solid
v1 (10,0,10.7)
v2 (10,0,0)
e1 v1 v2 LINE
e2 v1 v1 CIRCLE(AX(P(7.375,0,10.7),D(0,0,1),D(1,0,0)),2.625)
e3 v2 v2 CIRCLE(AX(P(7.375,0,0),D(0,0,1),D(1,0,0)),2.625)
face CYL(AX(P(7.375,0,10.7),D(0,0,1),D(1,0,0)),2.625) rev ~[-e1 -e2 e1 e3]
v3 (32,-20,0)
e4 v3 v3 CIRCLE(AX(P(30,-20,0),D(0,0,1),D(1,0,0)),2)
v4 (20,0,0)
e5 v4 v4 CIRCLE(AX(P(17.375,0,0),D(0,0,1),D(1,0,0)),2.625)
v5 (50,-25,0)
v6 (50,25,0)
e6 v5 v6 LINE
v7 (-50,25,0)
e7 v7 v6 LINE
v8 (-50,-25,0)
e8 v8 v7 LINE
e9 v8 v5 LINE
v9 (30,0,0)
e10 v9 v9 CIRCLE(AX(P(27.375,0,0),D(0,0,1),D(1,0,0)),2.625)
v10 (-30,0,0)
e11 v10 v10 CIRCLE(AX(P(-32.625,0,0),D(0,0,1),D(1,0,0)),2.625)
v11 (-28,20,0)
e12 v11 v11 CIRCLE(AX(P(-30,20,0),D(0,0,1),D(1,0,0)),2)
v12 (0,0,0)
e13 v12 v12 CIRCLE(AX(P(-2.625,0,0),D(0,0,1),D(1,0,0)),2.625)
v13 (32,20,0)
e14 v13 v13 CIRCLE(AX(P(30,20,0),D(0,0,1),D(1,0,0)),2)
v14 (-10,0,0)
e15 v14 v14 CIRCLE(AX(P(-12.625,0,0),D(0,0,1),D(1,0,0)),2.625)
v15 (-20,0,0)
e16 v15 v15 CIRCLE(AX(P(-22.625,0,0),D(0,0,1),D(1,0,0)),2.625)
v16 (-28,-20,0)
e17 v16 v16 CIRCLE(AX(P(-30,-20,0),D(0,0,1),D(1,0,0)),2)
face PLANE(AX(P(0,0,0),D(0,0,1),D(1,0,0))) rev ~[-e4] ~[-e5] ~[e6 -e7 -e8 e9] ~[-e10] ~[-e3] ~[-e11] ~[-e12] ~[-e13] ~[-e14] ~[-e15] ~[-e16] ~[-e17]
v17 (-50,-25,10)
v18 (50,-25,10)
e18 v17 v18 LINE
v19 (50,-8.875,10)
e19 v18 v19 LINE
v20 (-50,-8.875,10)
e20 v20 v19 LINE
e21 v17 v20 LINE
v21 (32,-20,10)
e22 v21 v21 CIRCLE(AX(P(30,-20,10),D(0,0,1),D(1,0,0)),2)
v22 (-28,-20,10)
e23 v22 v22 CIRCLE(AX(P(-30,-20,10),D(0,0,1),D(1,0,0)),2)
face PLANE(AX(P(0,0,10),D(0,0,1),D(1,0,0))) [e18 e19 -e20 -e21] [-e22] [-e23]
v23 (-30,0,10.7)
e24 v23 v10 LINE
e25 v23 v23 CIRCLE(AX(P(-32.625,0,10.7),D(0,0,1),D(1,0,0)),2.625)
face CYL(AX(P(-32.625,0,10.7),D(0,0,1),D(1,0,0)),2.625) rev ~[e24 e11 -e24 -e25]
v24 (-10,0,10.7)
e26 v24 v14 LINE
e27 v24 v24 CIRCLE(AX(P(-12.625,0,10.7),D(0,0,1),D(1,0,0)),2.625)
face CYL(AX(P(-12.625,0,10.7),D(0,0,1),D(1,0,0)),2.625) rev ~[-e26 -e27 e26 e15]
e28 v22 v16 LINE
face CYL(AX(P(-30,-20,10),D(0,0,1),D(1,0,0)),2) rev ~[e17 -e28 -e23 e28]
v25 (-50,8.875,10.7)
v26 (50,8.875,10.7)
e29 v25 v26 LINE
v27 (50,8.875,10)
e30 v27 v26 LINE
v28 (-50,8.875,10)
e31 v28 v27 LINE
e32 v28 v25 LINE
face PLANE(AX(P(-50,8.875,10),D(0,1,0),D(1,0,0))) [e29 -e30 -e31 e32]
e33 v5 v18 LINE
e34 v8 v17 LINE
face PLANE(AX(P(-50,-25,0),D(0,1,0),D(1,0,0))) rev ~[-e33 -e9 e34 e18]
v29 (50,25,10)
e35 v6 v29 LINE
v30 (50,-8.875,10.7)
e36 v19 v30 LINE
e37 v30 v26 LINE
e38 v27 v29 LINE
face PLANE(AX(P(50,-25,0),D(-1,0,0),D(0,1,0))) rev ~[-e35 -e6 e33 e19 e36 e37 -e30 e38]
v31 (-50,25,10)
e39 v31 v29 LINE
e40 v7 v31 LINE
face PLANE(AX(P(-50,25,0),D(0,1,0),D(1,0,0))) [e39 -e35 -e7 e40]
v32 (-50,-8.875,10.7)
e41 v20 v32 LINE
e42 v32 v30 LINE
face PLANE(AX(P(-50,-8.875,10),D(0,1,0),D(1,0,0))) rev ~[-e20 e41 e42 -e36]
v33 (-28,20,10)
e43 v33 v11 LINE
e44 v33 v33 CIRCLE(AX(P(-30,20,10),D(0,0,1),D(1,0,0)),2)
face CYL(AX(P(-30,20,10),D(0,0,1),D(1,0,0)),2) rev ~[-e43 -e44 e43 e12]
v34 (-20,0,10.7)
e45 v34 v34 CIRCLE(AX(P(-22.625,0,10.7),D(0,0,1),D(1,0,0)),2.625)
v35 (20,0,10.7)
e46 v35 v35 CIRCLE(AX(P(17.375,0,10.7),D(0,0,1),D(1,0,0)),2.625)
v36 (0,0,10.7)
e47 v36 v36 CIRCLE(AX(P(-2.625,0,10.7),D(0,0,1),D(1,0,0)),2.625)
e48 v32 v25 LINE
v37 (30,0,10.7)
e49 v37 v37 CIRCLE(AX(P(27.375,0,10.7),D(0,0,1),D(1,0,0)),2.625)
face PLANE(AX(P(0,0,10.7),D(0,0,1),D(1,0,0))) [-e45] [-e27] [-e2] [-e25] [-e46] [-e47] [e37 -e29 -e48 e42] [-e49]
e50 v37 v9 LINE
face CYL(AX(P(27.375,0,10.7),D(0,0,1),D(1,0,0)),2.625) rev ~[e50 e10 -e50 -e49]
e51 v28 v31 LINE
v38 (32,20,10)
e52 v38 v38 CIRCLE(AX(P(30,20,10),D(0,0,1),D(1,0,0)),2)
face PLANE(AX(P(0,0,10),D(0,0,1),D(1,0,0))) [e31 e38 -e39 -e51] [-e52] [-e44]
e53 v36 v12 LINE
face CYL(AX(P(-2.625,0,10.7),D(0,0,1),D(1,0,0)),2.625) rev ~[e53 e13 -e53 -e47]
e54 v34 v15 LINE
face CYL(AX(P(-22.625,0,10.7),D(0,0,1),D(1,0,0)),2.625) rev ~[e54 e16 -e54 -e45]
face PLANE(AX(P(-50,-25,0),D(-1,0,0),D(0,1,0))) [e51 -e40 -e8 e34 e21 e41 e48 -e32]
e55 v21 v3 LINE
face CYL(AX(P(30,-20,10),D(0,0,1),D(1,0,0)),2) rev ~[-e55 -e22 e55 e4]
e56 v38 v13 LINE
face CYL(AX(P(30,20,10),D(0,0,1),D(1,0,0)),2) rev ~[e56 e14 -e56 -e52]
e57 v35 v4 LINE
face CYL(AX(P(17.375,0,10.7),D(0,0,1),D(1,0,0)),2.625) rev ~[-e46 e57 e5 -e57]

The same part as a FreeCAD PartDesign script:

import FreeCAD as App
import Part
import Sketcher

V = App.Vector
Q = App.Units.Quantity


def add_polygon(sketch, points):
    """Adds a closed chain of lines whose ends are joined by coincident constraints."""
    first, n = sketch.GeometryCount, len(points)
    for a, b in zip(points, points[1:] + points[:1]):
        sketch.addGeometry(Part.LineSegment(App.Vector(*a, 0), App.Vector(*b, 0)), False)
    for i in range(n):
        sketch.addConstraint(Sketcher.Constraint("Coincident", first + i, 2, first + (i + 1) % n, 1))

doc = App.newDocument("Part")
body = doc.addObject("PartDesign::Body", "Body")

# Sketch on XY plane
sketch1 = body.newObject("Sketcher::SketchObject", "Sketch")
sketch1.AttachmentSupport = (doc.getObject("XY_Plane"), [""])
sketch1.MapMode = "FlatFace"
add_polygon(sketch1, [(-50, 25), (-50, -25), (50, -25), (50, 25)])  # lines 0-3
sketch1.addConstraint(Sketcher.Constraint("Vertical", 0))
sketch1.addConstraint(Sketcher.Constraint("Horizontal", 1))
sketch1.addConstraint(Sketcher.Constraint("Vertical", 2))
sketch1.addConstraint(Sketcher.Constraint("Horizontal", 3))
sketch1.addConstraint(Sketcher.Constraint("Symmetric", 0, 2, 2, 2, -1, 1))
sketch1.addConstraint(Sketcher.Constraint("DistanceX", 1, 1, 1, 2, Q("100 mm")))
sketch1.addConstraint(Sketcher.Constraint("DistanceY", 0, 2, 0, 1, Q("50 mm")))
pad1 = body.newObject("PartDesign::Pad", "Pad")
pad1.Profile = sketch1
pad1.Length = 10

# Sketch on XY plane
sketch2 = body.newObject("Sketcher::SketchObject", "Sketch001")
sketch2.AttachmentSupport = (doc.getObject("XY_Plane"), [""])
sketch2.MapMode = "FlatFace"
sketch2.AttachmentOffset = App.Placement(V(0, 0, 10), App.Rotation())
sketch2.addGeometry(Part.Circle(V(-30, 20, 0), V(0, 0, 1), 2), False)
sketch2.addGeometry(Part.Circle(V(-30, -20, 0), V(0, 0, 1), 2), False)
sketch2.addGeometry(Part.Circle(V(30, 20, 0), V(0, 0, 1), 2), False)
sketch2.addGeometry(Part.Circle(V(30, -20, 0), V(0, 0, 1), 2), False)
sketch2.addConstraint(Sketcher.Constraint("Equal", 0, 1))
sketch2.addConstraint(Sketcher.Constraint("Equal", 1, 2))
sketch2.addConstraint(Sketcher.Constraint("Equal", 2, 3))
sketch2.addConstraint(Sketcher.Constraint("Symmetric", 1, 3, 2, 3, -1, 1))
sketch2.addConstraint(Sketcher.Constraint("Symmetric", 0, 3, 3, 3, -1, 1))
sketch2.addConstraint(Sketcher.Constraint("Symmetric", 0, 3, 2, 3, -2))
sketch2.addConstraint(Sketcher.Constraint("Diameter", 0, Q("4 mm")))
sketch2.addConstraint(Sketcher.Constraint("DistanceX", 0, 3, -1, 1, Q("30 mm")))
sketch2.addConstraint(Sketcher.Constraint("DistanceY", -1, 1, 0, 3, Q("20 mm")))
pocket1 = body.newObject("PartDesign::Pocket", "Pocket")
pocket1.Profile = sketch2
pocket1.Type = "ThroughAll"

# Sketch on XY plane
sketch3 = body.newObject("Sketcher::SketchObject", "Sketch002")
sketch3.AttachmentSupport = (doc.getObject("XY_Plane"), [""])
sketch3.MapMode = "FlatFace"
sketch3.AttachmentOffset = App.Placement(V(0, 0, 10), App.Rotation())
add_polygon(sketch3, [(-50, 9), (-50, -9), (50, -9), (50, 9)])  # lines 0-3
sketch3.addConstraint(Sketcher.Constraint("Vertical", 0))
sketch3.addConstraint(Sketcher.Constraint("Horizontal", 1))
sketch3.addConstraint(Sketcher.Constraint("Vertical", 2))
sketch3.addConstraint(Sketcher.Constraint("Horizontal", 3))
sketch3.addConstraint(Sketcher.Constraint("Symmetric", 0, 2, 2, 2, -1, 1))
sketch3.addConstraint(Sketcher.Constraint("DistanceX", 1, 1, 1, 2, Q("100 mm")))
sketch3.addConstraint(Sketcher.Constraint("DistanceY", 0, 2, 0, 1, Q("17.75 mm")))
pad2 = body.newObject("PartDesign::Pad", "Pad001")
pad2.Profile = sketch3
pad2.Length = 0.7

# Sketch on XY plane
sketch4 = body.newObject("Sketcher::SketchObject", "Sketch003")
sketch4.AttachmentSupport = (doc.getObject("XY_Plane"), [""])
sketch4.MapMode = "FlatFace"
sketch4.AttachmentOffset = App.Placement(V(0, 0, 10.7), App.Rotation())
sketch4.addGeometry(Part.Circle(V(-32.6, 0, 0), V(0, 0, 1), 2.6), False)
sketch4.addGeometry(Part.Circle(V(-22.6, 0, 0), V(0, 0, 1), 2.6), False)
sketch4.addGeometry(Part.Circle(V(-12.6, 0, 0), V(0, 0, 1), 2.6), False)
sketch4.addGeometry(Part.Circle(V(-2.6, 0, 0), V(0, 0, 1), 2.6), False)
sketch4.addGeometry(Part.Circle(V(7.4, 0, 0), V(0, 0, 1), 2.6), False)
sketch4.addGeometry(Part.Circle(V(17.4, 0, 0), V(0, 0, 1), 2.6), False)
sketch4.addGeometry(Part.Circle(V(27.4, 0, 0), V(0, 0, 1), 2.6), False)
sketch4.addConstraint(Sketcher.Constraint("Equal", 0, 1))
sketch4.addConstraint(Sketcher.Constraint("Equal", 1, 2))
sketch4.addConstraint(Sketcher.Constraint("Equal", 2, 3))
sketch4.addConstraint(Sketcher.Constraint("Equal", 3, 4))
sketch4.addConstraint(Sketcher.Constraint("Equal", 4, 5))
sketch4.addConstraint(Sketcher.Constraint("Equal", 5, 6))
sketch4.addConstraint(Sketcher.Constraint("PointOnObject", 0, 3, -1))
sketch4.addConstraint(Sketcher.Constraint("PointOnObject", 1, 3, -1))
sketch4.addConstraint(Sketcher.Constraint("PointOnObject", 2, 3, -1))
sketch4.addConstraint(Sketcher.Constraint("PointOnObject", 3, 3, -1))
sketch4.addConstraint(Sketcher.Constraint("PointOnObject", 4, 3, -1))
sketch4.addConstraint(Sketcher.Constraint("PointOnObject", 5, 3, -1))
sketch4.addConstraint(Sketcher.Constraint("PointOnObject", 6, 3, -1))
sketch4.addConstraint(Sketcher.Constraint("Diameter", 0, Q("5.25 mm")))
sketch4.addConstraint(Sketcher.Constraint("DistanceX", 0, 3, 1, 3, Q("10 mm")))
sketch4.addConstraint(Sketcher.Constraint("DistanceX", 1, 3, 2, 3, Q("10 mm")))
sketch4.addConstraint(Sketcher.Constraint("DistanceX", 2, 3, 3, 3, Q("10 mm")))
sketch4.addConstraint(Sketcher.Constraint("DistanceX", 3, 3, 4, 3, Q("10 mm")))
sketch4.addConstraint(Sketcher.Constraint("DistanceX", 4, 3, 5, 3, Q("10 mm")))
sketch4.addConstraint(Sketcher.Constraint("DistanceX", 5, 3, 6, 3, Q("10 mm")))
sketch4.addConstraint(Sketcher.Constraint("DistanceX", 0, 3, -1, 1, Q("32.625 mm")))
pocket2 = body.newObject("PartDesign::Pocket", "Pocket001")
pocket2.Profile = sketch4
pocket2.Type = "ThroughAll"

doc.recompute()
